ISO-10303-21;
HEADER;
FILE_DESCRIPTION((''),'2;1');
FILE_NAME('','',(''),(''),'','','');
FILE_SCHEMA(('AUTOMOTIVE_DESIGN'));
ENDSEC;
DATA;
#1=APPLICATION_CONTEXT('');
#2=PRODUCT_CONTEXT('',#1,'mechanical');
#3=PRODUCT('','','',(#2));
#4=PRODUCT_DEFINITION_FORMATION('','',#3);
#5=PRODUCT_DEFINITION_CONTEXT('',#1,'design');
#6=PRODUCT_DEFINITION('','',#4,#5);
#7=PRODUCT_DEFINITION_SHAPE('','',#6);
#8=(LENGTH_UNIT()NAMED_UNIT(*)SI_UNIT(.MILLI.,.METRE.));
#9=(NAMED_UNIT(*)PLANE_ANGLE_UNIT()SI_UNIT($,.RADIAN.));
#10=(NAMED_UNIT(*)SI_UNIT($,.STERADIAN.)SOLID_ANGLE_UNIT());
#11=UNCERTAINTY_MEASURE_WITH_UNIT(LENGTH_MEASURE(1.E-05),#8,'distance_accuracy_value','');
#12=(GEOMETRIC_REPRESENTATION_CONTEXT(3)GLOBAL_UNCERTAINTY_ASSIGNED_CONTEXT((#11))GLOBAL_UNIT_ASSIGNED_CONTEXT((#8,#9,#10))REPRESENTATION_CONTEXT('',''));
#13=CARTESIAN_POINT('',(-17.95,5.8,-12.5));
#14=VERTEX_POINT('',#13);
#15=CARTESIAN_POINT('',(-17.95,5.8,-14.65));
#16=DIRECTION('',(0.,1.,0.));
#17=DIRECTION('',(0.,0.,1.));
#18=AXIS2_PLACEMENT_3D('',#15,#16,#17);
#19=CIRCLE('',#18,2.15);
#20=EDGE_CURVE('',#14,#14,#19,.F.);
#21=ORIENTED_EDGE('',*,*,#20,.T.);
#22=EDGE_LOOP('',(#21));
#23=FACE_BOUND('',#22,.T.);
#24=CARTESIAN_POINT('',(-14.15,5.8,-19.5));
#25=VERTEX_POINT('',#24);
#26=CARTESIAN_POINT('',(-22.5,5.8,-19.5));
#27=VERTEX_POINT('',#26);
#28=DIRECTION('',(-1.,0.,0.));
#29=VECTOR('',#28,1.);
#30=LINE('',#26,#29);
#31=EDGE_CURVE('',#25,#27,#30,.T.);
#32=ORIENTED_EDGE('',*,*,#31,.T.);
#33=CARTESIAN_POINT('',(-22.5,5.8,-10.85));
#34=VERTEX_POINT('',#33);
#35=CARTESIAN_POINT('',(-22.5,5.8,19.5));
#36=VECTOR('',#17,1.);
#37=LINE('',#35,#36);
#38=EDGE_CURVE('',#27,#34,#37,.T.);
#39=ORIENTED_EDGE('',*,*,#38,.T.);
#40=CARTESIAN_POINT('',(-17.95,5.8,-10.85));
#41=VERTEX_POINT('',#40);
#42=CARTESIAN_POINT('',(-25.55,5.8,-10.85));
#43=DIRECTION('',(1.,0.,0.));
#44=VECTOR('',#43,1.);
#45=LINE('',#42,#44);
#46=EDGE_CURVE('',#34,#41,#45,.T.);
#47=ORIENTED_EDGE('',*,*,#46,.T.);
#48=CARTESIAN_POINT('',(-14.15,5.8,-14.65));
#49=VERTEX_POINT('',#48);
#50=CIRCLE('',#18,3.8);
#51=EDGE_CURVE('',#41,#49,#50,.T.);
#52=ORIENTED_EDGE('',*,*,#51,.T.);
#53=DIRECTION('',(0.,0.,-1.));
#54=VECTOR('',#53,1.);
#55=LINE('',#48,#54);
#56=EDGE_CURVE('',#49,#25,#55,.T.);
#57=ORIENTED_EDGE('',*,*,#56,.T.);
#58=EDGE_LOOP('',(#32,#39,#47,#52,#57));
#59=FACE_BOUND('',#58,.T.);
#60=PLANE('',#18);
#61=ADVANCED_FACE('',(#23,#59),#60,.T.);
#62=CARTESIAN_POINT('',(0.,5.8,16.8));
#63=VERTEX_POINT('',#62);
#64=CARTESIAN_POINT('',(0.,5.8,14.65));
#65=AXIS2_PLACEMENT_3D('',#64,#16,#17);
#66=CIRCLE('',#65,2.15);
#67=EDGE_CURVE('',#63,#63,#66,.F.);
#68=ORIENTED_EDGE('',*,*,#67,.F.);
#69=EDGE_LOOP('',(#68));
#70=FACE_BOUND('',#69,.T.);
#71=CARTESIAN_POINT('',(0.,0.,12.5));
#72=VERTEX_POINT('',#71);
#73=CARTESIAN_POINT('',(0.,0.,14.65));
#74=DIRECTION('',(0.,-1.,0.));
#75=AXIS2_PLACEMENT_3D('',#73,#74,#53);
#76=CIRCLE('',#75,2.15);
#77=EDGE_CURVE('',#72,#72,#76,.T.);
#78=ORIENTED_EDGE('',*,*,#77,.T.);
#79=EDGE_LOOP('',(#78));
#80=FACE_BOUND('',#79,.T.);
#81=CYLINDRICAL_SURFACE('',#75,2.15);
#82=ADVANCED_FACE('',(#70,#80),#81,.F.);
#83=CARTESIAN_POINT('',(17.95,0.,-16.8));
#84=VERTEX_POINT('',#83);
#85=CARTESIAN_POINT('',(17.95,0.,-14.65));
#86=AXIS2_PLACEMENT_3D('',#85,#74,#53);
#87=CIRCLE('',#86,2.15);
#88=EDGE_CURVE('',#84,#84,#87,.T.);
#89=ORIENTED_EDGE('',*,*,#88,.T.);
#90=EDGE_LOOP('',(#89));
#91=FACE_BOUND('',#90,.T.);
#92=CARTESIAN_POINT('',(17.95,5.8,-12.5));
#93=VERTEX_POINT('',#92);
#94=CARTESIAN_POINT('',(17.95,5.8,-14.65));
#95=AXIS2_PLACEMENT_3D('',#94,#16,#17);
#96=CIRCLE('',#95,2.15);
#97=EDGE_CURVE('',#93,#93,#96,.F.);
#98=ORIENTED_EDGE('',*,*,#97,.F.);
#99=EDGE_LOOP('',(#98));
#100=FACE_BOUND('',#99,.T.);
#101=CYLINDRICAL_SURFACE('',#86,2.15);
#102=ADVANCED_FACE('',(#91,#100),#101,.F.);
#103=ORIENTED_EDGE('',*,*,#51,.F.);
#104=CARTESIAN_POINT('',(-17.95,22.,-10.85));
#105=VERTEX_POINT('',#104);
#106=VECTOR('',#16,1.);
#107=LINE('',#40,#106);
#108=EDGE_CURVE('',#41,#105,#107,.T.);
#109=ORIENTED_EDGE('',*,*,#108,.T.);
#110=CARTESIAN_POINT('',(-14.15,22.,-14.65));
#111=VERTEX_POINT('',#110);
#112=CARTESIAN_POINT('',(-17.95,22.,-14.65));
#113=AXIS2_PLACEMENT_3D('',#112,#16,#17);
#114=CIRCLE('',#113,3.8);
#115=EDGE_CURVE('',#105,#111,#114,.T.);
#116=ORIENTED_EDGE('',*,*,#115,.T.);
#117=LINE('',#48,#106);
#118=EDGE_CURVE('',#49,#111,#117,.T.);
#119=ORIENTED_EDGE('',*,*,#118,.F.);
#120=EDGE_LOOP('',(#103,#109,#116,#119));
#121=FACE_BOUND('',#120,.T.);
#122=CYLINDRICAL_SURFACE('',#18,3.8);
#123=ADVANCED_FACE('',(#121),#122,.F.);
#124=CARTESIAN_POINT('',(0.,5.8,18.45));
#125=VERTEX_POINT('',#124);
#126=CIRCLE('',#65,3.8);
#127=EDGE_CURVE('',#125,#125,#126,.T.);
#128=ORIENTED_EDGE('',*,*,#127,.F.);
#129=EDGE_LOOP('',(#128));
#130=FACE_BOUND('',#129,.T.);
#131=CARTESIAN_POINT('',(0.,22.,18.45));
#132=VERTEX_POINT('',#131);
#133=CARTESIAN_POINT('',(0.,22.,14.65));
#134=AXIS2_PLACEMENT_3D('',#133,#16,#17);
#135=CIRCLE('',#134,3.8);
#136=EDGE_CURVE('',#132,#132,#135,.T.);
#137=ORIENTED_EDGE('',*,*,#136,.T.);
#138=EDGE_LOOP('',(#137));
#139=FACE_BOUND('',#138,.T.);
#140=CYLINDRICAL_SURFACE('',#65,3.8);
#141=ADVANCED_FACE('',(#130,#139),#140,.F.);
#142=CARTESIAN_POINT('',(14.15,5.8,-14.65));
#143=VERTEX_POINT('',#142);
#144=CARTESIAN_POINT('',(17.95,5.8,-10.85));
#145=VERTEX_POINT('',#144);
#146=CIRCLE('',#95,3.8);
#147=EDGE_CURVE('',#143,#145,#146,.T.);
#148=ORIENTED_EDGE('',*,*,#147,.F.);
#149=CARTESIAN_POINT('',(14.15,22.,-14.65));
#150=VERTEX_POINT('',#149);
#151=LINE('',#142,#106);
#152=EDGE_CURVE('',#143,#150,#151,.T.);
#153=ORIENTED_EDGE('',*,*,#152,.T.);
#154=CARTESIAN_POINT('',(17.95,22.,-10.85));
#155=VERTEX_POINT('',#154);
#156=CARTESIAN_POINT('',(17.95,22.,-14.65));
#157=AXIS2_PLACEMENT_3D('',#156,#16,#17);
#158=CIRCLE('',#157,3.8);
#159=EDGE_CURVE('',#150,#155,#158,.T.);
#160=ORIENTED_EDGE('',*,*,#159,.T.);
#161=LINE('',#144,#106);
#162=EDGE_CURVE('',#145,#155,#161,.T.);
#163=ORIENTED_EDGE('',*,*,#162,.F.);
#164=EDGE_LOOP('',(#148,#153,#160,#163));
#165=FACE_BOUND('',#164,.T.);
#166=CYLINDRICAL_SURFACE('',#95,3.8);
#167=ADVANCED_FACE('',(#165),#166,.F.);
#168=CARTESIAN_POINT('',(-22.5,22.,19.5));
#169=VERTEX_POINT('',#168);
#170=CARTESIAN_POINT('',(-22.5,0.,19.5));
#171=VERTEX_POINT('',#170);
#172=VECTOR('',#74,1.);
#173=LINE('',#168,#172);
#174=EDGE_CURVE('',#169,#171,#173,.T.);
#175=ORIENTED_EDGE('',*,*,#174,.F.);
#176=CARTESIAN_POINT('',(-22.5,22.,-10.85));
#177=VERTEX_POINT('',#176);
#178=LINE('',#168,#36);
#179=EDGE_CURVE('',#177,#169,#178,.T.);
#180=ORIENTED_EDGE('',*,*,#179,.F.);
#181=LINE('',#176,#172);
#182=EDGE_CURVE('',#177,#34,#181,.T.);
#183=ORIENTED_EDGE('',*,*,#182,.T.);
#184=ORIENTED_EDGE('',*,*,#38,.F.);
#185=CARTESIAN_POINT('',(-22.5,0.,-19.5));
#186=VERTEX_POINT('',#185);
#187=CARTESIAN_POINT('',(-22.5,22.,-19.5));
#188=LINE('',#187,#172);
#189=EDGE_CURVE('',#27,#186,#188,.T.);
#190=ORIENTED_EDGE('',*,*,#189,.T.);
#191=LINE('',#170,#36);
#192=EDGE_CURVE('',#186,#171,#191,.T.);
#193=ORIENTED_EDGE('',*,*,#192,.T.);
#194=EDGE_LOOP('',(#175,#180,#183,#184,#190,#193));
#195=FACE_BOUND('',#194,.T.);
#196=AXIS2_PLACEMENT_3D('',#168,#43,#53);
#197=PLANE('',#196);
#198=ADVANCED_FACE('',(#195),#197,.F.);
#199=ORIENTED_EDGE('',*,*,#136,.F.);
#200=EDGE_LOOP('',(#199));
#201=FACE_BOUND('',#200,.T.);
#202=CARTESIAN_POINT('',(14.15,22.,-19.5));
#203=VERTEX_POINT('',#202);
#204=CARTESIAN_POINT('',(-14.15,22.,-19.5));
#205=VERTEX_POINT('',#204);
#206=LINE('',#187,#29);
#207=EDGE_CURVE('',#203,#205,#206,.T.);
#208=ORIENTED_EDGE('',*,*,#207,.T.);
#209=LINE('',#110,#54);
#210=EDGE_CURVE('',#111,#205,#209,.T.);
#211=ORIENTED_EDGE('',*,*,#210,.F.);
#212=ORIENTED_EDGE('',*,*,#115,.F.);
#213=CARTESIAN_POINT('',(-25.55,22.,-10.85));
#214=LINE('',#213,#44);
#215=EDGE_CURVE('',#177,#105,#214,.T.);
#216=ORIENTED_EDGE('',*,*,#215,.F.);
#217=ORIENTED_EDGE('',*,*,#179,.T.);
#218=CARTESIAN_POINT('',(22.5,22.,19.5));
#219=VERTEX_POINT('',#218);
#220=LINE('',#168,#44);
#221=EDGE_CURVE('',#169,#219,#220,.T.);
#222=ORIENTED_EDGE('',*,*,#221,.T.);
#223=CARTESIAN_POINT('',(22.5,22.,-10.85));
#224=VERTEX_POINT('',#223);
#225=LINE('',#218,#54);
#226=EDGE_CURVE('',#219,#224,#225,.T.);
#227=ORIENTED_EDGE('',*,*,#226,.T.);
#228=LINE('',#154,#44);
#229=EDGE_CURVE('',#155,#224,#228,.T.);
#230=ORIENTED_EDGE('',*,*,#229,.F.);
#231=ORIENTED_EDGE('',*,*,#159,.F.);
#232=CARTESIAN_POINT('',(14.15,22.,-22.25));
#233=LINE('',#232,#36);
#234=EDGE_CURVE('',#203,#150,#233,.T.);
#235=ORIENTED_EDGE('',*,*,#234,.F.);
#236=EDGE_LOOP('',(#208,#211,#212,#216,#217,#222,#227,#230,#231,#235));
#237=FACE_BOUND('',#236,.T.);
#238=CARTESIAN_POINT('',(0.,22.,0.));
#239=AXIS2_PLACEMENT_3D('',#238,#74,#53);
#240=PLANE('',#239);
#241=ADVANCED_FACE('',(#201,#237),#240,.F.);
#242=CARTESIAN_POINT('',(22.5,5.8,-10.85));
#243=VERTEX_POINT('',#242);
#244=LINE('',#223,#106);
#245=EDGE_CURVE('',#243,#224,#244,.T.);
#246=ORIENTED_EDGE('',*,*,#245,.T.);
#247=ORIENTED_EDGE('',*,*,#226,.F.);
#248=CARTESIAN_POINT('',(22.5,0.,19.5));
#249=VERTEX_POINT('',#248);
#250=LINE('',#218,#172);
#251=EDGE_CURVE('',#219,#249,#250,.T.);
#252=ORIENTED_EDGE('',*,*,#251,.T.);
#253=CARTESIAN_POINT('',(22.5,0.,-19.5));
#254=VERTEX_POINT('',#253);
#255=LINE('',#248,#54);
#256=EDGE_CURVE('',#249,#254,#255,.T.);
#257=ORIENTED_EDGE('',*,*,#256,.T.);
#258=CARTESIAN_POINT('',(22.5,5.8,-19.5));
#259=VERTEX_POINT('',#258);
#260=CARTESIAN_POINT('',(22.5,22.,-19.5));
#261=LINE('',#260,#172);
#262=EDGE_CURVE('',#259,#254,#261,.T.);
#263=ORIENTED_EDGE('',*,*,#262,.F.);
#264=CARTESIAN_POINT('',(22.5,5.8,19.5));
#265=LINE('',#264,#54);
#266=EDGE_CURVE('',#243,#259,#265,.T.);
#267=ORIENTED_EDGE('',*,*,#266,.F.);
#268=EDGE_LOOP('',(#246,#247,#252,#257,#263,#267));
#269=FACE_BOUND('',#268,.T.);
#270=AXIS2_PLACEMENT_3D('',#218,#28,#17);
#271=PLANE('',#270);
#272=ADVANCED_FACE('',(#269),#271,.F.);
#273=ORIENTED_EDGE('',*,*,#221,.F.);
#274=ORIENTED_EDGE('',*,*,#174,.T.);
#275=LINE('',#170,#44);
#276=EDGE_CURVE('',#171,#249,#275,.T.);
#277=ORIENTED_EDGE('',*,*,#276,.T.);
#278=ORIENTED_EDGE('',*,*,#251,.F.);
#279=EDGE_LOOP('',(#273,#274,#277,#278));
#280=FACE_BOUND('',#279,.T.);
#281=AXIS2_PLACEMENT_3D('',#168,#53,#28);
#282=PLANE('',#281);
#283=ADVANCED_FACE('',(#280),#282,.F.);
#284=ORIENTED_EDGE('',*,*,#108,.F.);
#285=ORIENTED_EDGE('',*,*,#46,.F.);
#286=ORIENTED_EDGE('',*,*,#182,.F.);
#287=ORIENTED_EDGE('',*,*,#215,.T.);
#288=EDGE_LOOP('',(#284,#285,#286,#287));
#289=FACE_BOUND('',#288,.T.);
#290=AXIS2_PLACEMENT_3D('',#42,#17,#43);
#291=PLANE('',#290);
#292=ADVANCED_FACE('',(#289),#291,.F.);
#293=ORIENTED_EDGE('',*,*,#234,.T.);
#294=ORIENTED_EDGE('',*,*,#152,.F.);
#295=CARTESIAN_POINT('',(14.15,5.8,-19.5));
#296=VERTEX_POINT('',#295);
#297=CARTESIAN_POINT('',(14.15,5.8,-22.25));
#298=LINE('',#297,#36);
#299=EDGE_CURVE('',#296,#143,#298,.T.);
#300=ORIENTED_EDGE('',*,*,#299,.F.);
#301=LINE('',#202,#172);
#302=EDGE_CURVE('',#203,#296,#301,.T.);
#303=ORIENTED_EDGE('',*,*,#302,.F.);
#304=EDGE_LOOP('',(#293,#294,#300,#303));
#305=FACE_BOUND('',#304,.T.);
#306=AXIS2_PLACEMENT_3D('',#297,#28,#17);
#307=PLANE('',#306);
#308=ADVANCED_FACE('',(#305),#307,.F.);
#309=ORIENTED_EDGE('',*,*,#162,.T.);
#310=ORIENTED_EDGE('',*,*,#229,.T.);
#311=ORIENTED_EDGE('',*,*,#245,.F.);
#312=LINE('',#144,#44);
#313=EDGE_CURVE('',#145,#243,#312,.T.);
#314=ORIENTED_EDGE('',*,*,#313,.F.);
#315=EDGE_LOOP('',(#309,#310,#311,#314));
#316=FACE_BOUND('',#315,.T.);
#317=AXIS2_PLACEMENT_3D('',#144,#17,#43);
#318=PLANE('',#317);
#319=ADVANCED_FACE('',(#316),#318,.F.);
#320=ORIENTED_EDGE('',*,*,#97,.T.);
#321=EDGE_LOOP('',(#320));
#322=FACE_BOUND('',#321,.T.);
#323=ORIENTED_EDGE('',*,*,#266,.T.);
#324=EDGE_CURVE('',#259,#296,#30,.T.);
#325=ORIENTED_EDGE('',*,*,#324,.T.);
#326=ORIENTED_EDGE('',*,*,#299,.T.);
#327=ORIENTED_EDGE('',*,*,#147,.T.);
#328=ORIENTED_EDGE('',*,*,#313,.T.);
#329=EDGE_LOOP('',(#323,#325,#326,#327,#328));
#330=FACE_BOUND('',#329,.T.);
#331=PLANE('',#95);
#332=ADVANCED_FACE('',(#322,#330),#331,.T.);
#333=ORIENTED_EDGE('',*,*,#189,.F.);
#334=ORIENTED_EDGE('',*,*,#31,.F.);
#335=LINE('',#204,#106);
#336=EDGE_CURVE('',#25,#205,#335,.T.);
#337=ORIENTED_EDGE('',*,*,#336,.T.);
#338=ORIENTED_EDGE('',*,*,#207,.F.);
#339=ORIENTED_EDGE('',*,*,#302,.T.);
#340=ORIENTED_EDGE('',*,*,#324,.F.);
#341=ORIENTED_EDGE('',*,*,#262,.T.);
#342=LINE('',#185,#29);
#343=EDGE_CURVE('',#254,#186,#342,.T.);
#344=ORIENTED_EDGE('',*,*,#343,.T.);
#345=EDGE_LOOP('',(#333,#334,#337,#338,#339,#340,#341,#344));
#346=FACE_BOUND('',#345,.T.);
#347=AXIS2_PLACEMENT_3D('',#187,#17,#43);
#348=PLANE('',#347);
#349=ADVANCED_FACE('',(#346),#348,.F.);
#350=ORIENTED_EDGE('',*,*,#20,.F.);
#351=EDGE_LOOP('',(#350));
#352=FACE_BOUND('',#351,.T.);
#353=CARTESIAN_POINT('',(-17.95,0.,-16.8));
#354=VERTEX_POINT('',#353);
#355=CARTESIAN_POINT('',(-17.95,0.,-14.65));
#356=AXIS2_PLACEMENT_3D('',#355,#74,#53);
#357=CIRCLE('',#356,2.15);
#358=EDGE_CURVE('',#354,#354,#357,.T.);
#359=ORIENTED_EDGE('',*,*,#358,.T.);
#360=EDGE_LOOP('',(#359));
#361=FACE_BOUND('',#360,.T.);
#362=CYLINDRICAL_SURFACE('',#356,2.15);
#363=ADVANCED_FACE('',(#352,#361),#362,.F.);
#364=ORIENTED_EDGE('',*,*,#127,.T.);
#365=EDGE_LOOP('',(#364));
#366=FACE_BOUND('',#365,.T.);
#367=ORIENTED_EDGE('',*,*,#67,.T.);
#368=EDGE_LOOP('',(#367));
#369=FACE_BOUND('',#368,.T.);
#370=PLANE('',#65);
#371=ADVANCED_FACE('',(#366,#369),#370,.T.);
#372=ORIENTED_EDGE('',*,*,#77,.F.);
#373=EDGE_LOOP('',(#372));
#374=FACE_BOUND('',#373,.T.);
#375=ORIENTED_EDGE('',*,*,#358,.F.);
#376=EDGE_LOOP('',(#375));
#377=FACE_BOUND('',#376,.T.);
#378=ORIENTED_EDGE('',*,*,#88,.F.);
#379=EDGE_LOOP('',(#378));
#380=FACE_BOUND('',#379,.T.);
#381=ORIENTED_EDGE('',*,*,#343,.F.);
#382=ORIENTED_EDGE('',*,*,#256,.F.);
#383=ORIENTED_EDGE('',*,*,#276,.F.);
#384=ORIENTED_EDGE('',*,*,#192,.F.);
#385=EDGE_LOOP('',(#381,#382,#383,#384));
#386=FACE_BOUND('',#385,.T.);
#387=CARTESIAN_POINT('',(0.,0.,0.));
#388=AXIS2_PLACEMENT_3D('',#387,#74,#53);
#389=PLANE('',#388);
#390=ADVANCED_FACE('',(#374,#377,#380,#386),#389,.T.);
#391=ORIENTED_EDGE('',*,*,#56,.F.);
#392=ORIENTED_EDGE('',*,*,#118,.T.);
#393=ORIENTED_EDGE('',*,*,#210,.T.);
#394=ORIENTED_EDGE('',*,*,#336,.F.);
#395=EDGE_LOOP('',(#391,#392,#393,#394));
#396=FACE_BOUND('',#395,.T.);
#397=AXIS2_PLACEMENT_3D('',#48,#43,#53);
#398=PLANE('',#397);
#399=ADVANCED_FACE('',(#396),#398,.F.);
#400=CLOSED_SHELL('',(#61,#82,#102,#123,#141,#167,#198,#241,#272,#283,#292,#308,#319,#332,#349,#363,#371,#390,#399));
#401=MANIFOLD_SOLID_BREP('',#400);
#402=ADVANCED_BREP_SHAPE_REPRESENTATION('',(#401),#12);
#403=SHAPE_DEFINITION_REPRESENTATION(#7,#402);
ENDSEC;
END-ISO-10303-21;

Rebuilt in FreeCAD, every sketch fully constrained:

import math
import FreeCAD as App
import Part
import Sketcher
from FreeCAD import Vector
Q = App.Units.Quantity


def add_polygon(sketch, points):
    """Adds a closed chain of lines whose ends are joined by coincident constraints."""
    first, n = sketch.GeometryCount, len(points)
    for a, b in zip(points, points[1:] + points[:1]):
        sketch.addGeometry(Part.LineSegment(App.Vector(*a, 0), App.Vector(*b, 0)), False)
    for i in range(n):
        sketch.addConstraint(Sketcher.Constraint("Coincident", first + i, 2, first + (i + 1) % n, 1))

doc = App.newDocument("Part")
params = doc.addObject("Spreadsheet::Sheet", "Params")
for row, (alias, value) in enumerate([
    ("sketch1_width", "45 mm"),
    ("sketch1_height", "39 mm"),
    ("pad1_length", "22 mm"),
    ("sketch2_diameter", "4.3 mm"),
    ("hole_diameter", "4.3 mm"),
    ("sketch3_diameter", "7.6 mm"),
    ("sketch3_width", "11.4 mm"),
    ("pocket1_length", "16.2 mm"),
], start=1):
    params.set(f"A{row}", alias)
    params.set(f"B{row}", "=" + value)
    params.setAlias(f"B{row}", alias)

body = doc.addObject("PartDesign::Body", "Body")

# Sketch on XZ plane
sketch1 = doc.addObject("Sketcher::SketchObject", "Sketch")
body.addObject(sketch1)
sketch1.AttachmentSupport = (doc.XZ_Plane, [""])
sketch1.MapMode = "FlatFace"
add_polygon(sketch1, [(-22, -20), (-22, 20), (22, 20), (22, -20)])  # lines 0-3
sketch1.addConstraint([
    Sketcher.Constraint("Vertical", 0),
    Sketcher.Constraint("Horizontal", 1),
    Sketcher.Constraint("Vertical", 2),
    Sketcher.Constraint("Horizontal", 3),
    Sketcher.Constraint("Symmetric", 0, 2, 2, 2, -1, 1),
    Sketcher.Constraint("DistanceX", 1, 1, 1, 2, Q("45 mm")),
    Sketcher.Constraint("DistanceY", 0, 1, 0, 2, Q("39 mm")),
])
sketch1.setExpression("Constraints[9]", "Params.sketch1_width")
sketch1.setExpression("Constraints[10]", "Params.sketch1_height")
pad1 = doc.addObject("PartDesign::Pad", "Pad")
body.addObject(pad1)
pad1.Profile = sketch1
pad1.setExpression("Length", "Params.pad1_length")
pad1.Reversed = True

# Sketch on XZ plane
sketch2 = doc.addObject("Sketcher::SketchObject", "Sketch001")
body.addObject(sketch2)
sketch2.AttachmentSupport = (doc.XZ_Plane, [""])
sketch2.MapMode = "FlatFace"
sketch2.addGeometry([
    Part.Circle(Vector(0, 14.7, 0), Vector(0, 0, 1), 2.1),
    Part.Circle(Vector(17.9, -14.7, 0), Vector(0, 0, 1), 2.1),
    Part.Circle(Vector(-17.9, -14.7, 0), Vector(0, 0, 1), 2.1),
], False)
sketch2.addConstraint([
    Sketcher.Constraint("Equal", 0, 1),
    Sketcher.Constraint("Equal", 1, 2),
    Sketcher.Constraint("Symmetric", 1, 3, 2, 3, -2),
    Sketcher.Constraint("PointOnObject", 0, 3, -2),
    Sketcher.Constraint("Diameter", 0, Q("4.3 mm")),
    Sketcher.Constraint("DistanceY", 1, 3, 0, 3, Q("29.3 mm")),
    Sketcher.Constraint("DistanceX", 2, 3, 1, 3, Q("35.9 mm")),
    Sketcher.Constraint("DistanceY", -1, 1, 0, 3, Q("14.65 mm")),
])
sketch2.setExpression("Constraints[4]", "Params.sketch2_diameter")
doc.recompute()
hole = doc.addObject("PartDesign::Hole", "Hole")
body.addObject(hole)
hole.Profile = sketch2
hole.ThreadType = "None"
hole.setExpression("Diameter", "Params.hole_diameter")
hole.DepthType = "ThroughAll"

# Sketch on XZ plane
sketch3 = doc.addObject("Sketcher::SketchObject", "Sketch002")
body.addObject(sketch3)
sketch3.AttachmentSupport = (doc.XZ_Plane, [""])
sketch3.MapMode = "FlatFace"
sketch3.AttachmentOffset = App.Placement(Vector(0, 0, -22), App.Rotation())
sketch3.addGeometry([
    Part.Circle(Vector(0, 14.7, 0), Vector(0, 0, 1), 3.8),  # 0
    Part.LineSegment(Vector(-14.2, -14.7, 0), Vector(-14.2, -22.2, 0)),  # 1
    Part.LineSegment(Vector(-14.2, -22.2, 0), Vector(-25.6, -22.2, 0)),  # 2
    Part.LineSegment(Vector(-25.6, -22.2, 0), Vector(-25.6, -10.8, 0)),  # 3
    Part.LineSegment(Vector(-25.6, -10.8, 0), Vector(-17.9, -10.8, 0)),  # 4
    Part.ArcOfCircle(Part.Circle(Vector(-17.9, -14.6, 0), Vector(0, 0, 1), 3.8), math.radians(0), math.radians(90)),  # 5
    Part.LineSegment(Vector(17.9, -10.8, 0), Vector(25.6, -10.8, 0)),  # 6
    Part.LineSegment(Vector(25.6, -10.8, 0), Vector(25.6, -22.2, 0)),  # 7
    Part.LineSegment(Vector(25.6, -22.2, 0), Vector(14.2, -22.2, 0)),  # 8
    Part.LineSegment(Vector(14.2, -22.2, 0), Vector(14.2, -14.7, 0)),  # 9
    Part.ArcOfCircle(Part.Circle(Vector(17.9, -14.6, 0), Vector(0, 0, 1), 3.8), math.radians(90), math.radians(180)),  # 10
], False)
sketch3.addConstraint([
    Sketcher.Constraint("Coincident", 1, 2, 2, 1),
    Sketcher.Constraint("Coincident", 2, 2, 3, 1),
    Sketcher.Constraint("Coincident", 3, 2, 4, 1),
    Sketcher.Constraint("Tangent", 4, 2, 5, 2),
    Sketcher.Constraint("Tangent", 5, 1, 1, 1),
    Sketcher.Constraint("Coincident", 6, 2, 7, 1),
    Sketcher.Constraint("Coincident", 7, 2, 8, 1),
    Sketcher.Constraint("Coincident", 8, 2, 9, 1),
    Sketcher.Constraint("Tangent", 9, 2, 10, 2),
    Sketcher.Constraint("Tangent", 10, 1, 6, 1),
    Sketcher.Constraint("Vertical", 1),
    Sketcher.Constraint("Horizontal", 2),
    Sketcher.Constraint("Vertical", 3),
    Sketcher.Constraint("Horizontal", 4),
    Sketcher.Constraint("Horizontal", 6),
    Sketcher.Constraint("Vertical", 7),
    Sketcher.Constraint("Horizontal", 8),
    Sketcher.Constraint("Vertical", 9),
    Sketcher.Constraint("Equal", 0, 5),
    Sketcher.Constraint("Equal", 5, 10),
    Sketcher.Constraint("Symmetric", 5, 3, 10, 3, -2),
    Sketcher.Constraint("Symmetric", 2, 2, 7, 2, -2),
    Sketcher.Constraint("PointOnObject", 0, 3, -2),
    Sketcher.Constraint("Equal", 6, 1),
    Sketcher.Constraint("Diameter", 0, Q("7.6 mm")),
    Sketcher.Constraint("DistanceX", 2, 2, 2, 1, Q("11.4 mm")),
    Sketcher.Constraint("DistanceY", 5, 3, 0, 3, Q("29.3 mm")),
    Sketcher.Constraint("DistanceX", 5, 3, 10, 3, Q("35.9 mm")),
    Sketcher.Constraint("DistanceY", -1, 1, 0, 3, Q("14.65 mm")),
])
sketch3.setExpression("Constraints[24]", "Params.sketch3_diameter")
sketch3.setExpression("Constraints[25]", "Params.sketch3_width")
pocket1 = doc.addObject("PartDesign::Pocket", "Pocket")
body.addObject(pocket1)
pocket1.Profile = sketch3
pocket1.setExpression("Length", "Params.pocket1_length")
pocket1.Reversed = True

doc.recompute()
